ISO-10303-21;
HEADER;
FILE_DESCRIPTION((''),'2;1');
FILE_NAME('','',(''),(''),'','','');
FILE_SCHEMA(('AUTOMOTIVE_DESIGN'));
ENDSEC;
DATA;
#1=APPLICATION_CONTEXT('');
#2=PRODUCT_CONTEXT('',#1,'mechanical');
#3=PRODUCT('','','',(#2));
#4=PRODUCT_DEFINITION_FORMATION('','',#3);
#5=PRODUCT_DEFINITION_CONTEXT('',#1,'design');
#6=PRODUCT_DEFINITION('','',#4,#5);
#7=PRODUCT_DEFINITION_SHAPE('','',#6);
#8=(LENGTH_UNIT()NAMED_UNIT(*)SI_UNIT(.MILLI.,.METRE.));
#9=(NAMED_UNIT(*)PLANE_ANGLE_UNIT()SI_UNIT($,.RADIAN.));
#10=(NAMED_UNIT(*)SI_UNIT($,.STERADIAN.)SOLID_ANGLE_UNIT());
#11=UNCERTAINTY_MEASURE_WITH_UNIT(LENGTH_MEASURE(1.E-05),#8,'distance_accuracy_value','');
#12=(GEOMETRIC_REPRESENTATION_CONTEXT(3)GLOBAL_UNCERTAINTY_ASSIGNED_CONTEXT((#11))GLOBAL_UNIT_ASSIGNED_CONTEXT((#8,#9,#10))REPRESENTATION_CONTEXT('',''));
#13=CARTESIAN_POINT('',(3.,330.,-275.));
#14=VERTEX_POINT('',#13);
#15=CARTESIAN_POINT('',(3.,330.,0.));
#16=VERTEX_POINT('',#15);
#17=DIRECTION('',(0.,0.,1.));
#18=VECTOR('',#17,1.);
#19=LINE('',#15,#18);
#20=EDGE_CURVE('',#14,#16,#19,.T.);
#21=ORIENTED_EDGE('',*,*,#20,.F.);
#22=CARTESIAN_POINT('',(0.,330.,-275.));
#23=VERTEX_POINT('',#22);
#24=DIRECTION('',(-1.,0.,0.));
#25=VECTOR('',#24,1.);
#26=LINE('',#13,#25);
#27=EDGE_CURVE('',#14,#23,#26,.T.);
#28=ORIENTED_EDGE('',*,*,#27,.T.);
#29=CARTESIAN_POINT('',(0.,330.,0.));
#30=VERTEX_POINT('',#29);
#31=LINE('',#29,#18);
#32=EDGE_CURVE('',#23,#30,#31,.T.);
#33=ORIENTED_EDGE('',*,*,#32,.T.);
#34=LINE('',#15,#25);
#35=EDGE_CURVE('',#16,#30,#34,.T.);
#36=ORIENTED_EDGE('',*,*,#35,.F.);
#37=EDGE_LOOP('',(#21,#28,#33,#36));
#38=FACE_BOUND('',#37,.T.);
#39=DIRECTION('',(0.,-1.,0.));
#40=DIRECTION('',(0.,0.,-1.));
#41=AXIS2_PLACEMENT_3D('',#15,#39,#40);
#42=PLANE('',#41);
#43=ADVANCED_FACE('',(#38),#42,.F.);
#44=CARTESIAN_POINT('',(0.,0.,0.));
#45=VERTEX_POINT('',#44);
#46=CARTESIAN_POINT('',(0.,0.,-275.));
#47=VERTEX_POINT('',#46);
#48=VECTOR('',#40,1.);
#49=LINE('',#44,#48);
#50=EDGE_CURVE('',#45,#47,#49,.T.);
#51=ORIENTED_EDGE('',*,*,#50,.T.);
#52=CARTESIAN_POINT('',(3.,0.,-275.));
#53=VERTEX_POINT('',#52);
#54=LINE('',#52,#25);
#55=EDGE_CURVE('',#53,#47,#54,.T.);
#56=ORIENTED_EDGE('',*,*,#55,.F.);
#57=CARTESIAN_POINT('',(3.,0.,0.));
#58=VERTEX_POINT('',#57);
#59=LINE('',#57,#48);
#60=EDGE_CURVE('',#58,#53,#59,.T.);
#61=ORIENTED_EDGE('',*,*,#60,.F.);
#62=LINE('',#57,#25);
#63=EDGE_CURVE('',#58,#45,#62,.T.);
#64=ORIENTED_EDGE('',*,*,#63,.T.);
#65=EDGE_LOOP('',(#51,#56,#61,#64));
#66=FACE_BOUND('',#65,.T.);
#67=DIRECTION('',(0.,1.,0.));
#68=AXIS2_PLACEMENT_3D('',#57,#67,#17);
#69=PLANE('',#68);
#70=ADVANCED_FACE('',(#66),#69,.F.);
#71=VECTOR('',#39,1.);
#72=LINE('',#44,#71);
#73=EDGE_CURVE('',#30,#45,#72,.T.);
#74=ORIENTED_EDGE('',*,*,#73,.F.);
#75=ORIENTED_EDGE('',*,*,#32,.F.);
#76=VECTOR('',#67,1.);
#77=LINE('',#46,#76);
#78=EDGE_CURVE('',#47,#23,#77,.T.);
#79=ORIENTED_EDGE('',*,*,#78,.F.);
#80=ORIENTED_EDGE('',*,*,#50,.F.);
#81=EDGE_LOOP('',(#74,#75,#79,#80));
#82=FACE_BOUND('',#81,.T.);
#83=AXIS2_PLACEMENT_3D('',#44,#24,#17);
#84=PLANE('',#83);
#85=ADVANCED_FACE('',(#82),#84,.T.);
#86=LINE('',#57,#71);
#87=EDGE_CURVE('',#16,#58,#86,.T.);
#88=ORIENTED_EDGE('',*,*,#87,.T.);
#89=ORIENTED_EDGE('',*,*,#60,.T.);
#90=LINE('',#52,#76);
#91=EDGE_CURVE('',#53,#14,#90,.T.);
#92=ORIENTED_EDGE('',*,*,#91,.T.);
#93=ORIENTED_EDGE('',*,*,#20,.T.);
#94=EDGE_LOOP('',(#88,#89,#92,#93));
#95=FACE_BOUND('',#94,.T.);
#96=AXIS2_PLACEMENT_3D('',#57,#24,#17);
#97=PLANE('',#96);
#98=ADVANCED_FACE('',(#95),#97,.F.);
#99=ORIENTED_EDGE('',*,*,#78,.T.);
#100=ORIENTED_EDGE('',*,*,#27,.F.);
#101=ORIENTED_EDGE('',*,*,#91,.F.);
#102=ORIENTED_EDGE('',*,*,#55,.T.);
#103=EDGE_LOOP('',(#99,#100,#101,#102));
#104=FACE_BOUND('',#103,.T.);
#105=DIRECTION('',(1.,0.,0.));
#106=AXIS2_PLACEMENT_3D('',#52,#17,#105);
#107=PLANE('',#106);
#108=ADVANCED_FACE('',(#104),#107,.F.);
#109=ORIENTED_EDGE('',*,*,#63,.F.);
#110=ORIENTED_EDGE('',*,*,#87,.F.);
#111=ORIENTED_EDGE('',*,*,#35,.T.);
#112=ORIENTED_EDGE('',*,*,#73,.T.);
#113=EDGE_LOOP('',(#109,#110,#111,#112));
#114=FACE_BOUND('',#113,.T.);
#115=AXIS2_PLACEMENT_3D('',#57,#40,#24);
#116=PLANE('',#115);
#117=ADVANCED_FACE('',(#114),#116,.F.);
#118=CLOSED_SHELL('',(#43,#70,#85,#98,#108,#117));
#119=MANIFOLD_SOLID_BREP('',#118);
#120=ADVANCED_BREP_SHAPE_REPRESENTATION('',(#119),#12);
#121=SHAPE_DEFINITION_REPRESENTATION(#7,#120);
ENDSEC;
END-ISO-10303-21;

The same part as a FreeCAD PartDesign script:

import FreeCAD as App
import Part
import Sketcher
from FreeCAD import Vector
Q = App.Units.Quantity


def add_polygon(sketch, points):
    """Adds a closed chain of lines whose ends are joined by coincident constraints."""
    first, n = sketch.GeometryCount, len(points)
    for a, b in zip(points, points[1:] + points[:1]):
        sketch.addGeometry(Part.LineSegment(App.Vector(*a, 0), App.Vector(*b, 0)), False)
    for i in range(n):
        sketch.addConstraint(Sketcher.Constraint("Coincident", first + i, 2, first + (i + 1) % n, 1))

doc = App.newDocument("Part")
body = doc.addObject("PartDesign::Body", "Body")

# Sketch on YZ plane
sketch1 = doc.addObject("Sketcher::SketchObject", "Sketch")
body.addObject(sketch1)
sketch1.AttachmentSupport = (doc.YZ_Plane, [""])
sketch1.MapMode = "FlatFace"
add_polygon(sketch1, [(330, 0), (0, 0), (0, -275), (330, -275)])  # lines 0-3
sketch1.addConstraint([
    Sketcher.Constraint("Horizontal", 0),
    Sketcher.Constraint("Vertical", 1),
    Sketcher.Constraint("Horizontal", 2),
    Sketcher.Constraint("Vertical", 3),
    Sketcher.Constraint("Coincident", 0, 2, -1, 1),
    Sketcher.Constraint("DistanceX", 0, 2, 0, 1, Q("330 mm")),
    Sketcher.Constraint("DistanceY", 1, 2, 1, 1, Q("275 mm")),
])
pad1 = doc.addObject("PartDesign::Pad", "Pad")
body.addObject(pad1)
pad1.Profile = sketch1
pad1.Length = 3

doc.recompute()
